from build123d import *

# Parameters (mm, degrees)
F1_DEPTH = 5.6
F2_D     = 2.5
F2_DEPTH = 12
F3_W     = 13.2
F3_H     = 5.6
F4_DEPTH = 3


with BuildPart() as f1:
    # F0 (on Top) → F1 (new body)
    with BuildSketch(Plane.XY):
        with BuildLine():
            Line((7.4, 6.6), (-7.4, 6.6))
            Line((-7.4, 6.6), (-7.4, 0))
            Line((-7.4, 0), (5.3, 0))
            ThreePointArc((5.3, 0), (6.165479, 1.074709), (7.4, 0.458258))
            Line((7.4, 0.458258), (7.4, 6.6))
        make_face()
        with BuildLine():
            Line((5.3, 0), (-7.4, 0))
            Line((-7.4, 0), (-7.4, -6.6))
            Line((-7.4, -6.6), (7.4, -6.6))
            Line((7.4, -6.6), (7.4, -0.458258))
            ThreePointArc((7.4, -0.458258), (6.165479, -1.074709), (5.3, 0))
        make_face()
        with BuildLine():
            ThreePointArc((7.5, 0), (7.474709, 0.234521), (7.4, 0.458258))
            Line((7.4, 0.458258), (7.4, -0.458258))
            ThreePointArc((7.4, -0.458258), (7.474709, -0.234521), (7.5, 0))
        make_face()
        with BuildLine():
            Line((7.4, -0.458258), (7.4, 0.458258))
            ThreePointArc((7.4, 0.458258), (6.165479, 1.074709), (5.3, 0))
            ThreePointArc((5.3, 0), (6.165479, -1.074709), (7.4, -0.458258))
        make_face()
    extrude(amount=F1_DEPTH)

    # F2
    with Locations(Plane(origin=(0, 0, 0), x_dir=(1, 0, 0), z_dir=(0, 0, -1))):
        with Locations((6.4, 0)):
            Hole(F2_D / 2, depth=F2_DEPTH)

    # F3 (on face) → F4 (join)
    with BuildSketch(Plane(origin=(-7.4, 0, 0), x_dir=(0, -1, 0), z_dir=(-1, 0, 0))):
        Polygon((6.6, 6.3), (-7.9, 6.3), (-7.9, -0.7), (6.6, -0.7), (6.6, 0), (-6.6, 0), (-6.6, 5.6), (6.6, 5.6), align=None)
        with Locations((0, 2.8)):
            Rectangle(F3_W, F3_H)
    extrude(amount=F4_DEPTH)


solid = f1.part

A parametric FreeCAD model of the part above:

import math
import FreeCAD as App
import Part
import Sketcher


def add_polygon(sketch, points):
    """Adds a closed chain of lines whose ends are joined by coincident constraints."""
    first, n = sketch.GeometryCount, len(points)
    for a, b in zip(points, points[1:] + points[:1]):
        sketch.addGeometry(Part.LineSegment(App.Vector(*a, 0), App.Vector(*b, 0)), False)
    for i in range(n):
        sketch.addConstraint(Sketcher.Constraint("Coincident", first + i, 2, first + (i + 1) % n, 1))

doc = App.newDocument("Part")
body = doc.addObject("PartDesign::Body", "Body")

# Sketch on XY plane
sketch1 = body.newObject("Sketcher::SketchObject", "Sketch")
sketch1.AttachmentSupport = (doc.getObject("XY_Plane"), [""])
sketch1.MapMode = "FlatFace"
sketch1.addGeometry([
    Part.LineSegment(App.Vector(7.4, 6.6, 0), App.Vector(-7.4, 6.6, 0)),  # 0
    Part.LineSegment(App.Vector(-7.4, 6.6, 0), App.Vector(-7.4, -6.6, 0)),  # 1
    Part.LineSegment(App.Vector(-7.4, -6.6, 0), App.Vector(7.4, -6.6, 0)),  # 2
    Part.LineSegment(App.Vector(7.4, -6.6, 0), App.Vector(7.4, -0.458258, 0)),  # 3
    Part.ArcOfCircle(Part.Circle(App.Vector(6.399987, 0.000002, 0), App.Vector(0, 0, 1), 1.100013), math.radians(-24.619831), math.radians(-0.000124)),  # 4
    Part.ArcOfCircle(Part.Circle(App.Vector(6.399987, -0.000002, 0), App.Vector(0, 0, 1), 1.100013), math.radians(0.000124), math.radians(24.619831)),  # 5
    Part.LineSegment(App.Vector(7.4, 0.458258, 0), App.Vector(7.4, 6.6, 0)),  # 6
], False)
sketch1.addConstraint([
    Sketcher.Constraint("Coincident", 0, 2, 1, 1),
    Sketcher.Constraint("Coincident", 1, 2, 2, 1),
    Sketcher.Constraint("Coincident", 2, 2, 3, 1),
    Sketcher.Constraint("Coincident", 3, 2, 4, 1),
    Sketcher.Constraint("Coincident", 4, 2, 5, 1),
    Sketcher.Constraint("Coincident", 5, 2, 6, 1),
    Sketcher.Constraint("Coincident", 6, 2, 0, 1),
    Sketcher.Constraint("Horizontal", 0),
    Sketcher.Constraint("Vertical", 1),
    Sketcher.Constraint("Horizontal", 2),
    Sketcher.Constraint("Vertical", 3),
    Sketcher.Constraint("Vertical", 6),
    Sketcher.Constraint("Coincident", 5, 3, 4, 3),
    Sketcher.Constraint("Symmetric", 0, 2, 2, 2, -1, 1),
    Sketcher.Constraint("Symmetric", 3, 2, 5, 2, -1),
    Sketcher.Constraint("PointOnObject", 4, 2, -1),
    Sketcher.Constraint("DistanceX", 0, 2, 0, 1, 14.8),
    Sketcher.Constraint("DistanceY", 1, 2, 1, 1, 13.2),
    Sketcher.Constraint("DistanceX", -1, 1, 4, 2, 7.5),
    Sketcher.Constraint("Radius", 4, 1.100013),
])
pad1 = body.newObject("PartDesign::Pad", "Pad")
pad1.Profile = sketch1
pad1.Length = 5.6

# Sketch on XY plane
sketch2 = body.newObject("Sketcher::SketchObject", "Sketch001")
sketch2.AttachmentSupport = (doc.getObject("XY_Plane"), [""])
sketch2.MapMode = "FlatFace"
sketch2.addGeometry(Part.Circle(App.Vector(6.4, 0, 0), App.Vector(0, 0, 1), 1.25), False)
sketch2.addConstraint([
    Sketcher.Constraint("PointOnObject", 0, 3, -1),
    Sketcher.Constraint("Diameter", 0, 2.5),
    Sketcher.Constraint("DistanceX", -1, 1, 0, 3, 6.4),
])
doc.recompute()
hole = body.newObject("PartDesign::Hole", "Hole")
hole.Profile = sketch2
hole.ThreadType = "None"
hole.Diameter = 2.5
hole.DepthType = "Dimension"
hole.Depth = 12
hole.DrillPoint = "Flat"
hole.Reversed = True

# Sketch on YZ plane
sketch3 = body.newObject("Sketcher::SketchObject", "Sketch002")
sketch3.AttachmentSupport = (doc.getObject("YZ_Plane"), [""])
sketch3.MapMode = "FlatFace"
sketch3.AttachmentOffset = App.Placement(App.Vector(0, 0, -7.4), App.Rotation())
add_polygon(sketch3, [(-6.6, 6.3), (7.9, 6.3), (7.9, -0.7), (-6.6, -0.7)])  # lines 0-3
sketch3.addConstraint([
    Sketcher.Constraint("Horizontal", 0),
    Sketcher.Constraint("Vertical", 1),
    Sketcher.Constraint("Horizontal", 2),
    Sketcher.Constraint("Vertical", 3),
    Sketcher.Constraint("DistanceY", 1, 2, 1, 1, 7.0),
    Sketcher.Constraint("DistanceX", 0, 1, 0, 2, 14.5),
    Sketcher.Constraint("DistanceX", -1, 1, 0, 2, 7.9),
    Sketcher.Constraint("DistanceY", -1, 1, 0, 2, 6.3),
])
pad2 = body.newObject("PartDesign::Pad", "Pad001")
pad2.Profile = sketch3
pad2.Length = 3
pad2.Reversed = True

doc.recompute()
